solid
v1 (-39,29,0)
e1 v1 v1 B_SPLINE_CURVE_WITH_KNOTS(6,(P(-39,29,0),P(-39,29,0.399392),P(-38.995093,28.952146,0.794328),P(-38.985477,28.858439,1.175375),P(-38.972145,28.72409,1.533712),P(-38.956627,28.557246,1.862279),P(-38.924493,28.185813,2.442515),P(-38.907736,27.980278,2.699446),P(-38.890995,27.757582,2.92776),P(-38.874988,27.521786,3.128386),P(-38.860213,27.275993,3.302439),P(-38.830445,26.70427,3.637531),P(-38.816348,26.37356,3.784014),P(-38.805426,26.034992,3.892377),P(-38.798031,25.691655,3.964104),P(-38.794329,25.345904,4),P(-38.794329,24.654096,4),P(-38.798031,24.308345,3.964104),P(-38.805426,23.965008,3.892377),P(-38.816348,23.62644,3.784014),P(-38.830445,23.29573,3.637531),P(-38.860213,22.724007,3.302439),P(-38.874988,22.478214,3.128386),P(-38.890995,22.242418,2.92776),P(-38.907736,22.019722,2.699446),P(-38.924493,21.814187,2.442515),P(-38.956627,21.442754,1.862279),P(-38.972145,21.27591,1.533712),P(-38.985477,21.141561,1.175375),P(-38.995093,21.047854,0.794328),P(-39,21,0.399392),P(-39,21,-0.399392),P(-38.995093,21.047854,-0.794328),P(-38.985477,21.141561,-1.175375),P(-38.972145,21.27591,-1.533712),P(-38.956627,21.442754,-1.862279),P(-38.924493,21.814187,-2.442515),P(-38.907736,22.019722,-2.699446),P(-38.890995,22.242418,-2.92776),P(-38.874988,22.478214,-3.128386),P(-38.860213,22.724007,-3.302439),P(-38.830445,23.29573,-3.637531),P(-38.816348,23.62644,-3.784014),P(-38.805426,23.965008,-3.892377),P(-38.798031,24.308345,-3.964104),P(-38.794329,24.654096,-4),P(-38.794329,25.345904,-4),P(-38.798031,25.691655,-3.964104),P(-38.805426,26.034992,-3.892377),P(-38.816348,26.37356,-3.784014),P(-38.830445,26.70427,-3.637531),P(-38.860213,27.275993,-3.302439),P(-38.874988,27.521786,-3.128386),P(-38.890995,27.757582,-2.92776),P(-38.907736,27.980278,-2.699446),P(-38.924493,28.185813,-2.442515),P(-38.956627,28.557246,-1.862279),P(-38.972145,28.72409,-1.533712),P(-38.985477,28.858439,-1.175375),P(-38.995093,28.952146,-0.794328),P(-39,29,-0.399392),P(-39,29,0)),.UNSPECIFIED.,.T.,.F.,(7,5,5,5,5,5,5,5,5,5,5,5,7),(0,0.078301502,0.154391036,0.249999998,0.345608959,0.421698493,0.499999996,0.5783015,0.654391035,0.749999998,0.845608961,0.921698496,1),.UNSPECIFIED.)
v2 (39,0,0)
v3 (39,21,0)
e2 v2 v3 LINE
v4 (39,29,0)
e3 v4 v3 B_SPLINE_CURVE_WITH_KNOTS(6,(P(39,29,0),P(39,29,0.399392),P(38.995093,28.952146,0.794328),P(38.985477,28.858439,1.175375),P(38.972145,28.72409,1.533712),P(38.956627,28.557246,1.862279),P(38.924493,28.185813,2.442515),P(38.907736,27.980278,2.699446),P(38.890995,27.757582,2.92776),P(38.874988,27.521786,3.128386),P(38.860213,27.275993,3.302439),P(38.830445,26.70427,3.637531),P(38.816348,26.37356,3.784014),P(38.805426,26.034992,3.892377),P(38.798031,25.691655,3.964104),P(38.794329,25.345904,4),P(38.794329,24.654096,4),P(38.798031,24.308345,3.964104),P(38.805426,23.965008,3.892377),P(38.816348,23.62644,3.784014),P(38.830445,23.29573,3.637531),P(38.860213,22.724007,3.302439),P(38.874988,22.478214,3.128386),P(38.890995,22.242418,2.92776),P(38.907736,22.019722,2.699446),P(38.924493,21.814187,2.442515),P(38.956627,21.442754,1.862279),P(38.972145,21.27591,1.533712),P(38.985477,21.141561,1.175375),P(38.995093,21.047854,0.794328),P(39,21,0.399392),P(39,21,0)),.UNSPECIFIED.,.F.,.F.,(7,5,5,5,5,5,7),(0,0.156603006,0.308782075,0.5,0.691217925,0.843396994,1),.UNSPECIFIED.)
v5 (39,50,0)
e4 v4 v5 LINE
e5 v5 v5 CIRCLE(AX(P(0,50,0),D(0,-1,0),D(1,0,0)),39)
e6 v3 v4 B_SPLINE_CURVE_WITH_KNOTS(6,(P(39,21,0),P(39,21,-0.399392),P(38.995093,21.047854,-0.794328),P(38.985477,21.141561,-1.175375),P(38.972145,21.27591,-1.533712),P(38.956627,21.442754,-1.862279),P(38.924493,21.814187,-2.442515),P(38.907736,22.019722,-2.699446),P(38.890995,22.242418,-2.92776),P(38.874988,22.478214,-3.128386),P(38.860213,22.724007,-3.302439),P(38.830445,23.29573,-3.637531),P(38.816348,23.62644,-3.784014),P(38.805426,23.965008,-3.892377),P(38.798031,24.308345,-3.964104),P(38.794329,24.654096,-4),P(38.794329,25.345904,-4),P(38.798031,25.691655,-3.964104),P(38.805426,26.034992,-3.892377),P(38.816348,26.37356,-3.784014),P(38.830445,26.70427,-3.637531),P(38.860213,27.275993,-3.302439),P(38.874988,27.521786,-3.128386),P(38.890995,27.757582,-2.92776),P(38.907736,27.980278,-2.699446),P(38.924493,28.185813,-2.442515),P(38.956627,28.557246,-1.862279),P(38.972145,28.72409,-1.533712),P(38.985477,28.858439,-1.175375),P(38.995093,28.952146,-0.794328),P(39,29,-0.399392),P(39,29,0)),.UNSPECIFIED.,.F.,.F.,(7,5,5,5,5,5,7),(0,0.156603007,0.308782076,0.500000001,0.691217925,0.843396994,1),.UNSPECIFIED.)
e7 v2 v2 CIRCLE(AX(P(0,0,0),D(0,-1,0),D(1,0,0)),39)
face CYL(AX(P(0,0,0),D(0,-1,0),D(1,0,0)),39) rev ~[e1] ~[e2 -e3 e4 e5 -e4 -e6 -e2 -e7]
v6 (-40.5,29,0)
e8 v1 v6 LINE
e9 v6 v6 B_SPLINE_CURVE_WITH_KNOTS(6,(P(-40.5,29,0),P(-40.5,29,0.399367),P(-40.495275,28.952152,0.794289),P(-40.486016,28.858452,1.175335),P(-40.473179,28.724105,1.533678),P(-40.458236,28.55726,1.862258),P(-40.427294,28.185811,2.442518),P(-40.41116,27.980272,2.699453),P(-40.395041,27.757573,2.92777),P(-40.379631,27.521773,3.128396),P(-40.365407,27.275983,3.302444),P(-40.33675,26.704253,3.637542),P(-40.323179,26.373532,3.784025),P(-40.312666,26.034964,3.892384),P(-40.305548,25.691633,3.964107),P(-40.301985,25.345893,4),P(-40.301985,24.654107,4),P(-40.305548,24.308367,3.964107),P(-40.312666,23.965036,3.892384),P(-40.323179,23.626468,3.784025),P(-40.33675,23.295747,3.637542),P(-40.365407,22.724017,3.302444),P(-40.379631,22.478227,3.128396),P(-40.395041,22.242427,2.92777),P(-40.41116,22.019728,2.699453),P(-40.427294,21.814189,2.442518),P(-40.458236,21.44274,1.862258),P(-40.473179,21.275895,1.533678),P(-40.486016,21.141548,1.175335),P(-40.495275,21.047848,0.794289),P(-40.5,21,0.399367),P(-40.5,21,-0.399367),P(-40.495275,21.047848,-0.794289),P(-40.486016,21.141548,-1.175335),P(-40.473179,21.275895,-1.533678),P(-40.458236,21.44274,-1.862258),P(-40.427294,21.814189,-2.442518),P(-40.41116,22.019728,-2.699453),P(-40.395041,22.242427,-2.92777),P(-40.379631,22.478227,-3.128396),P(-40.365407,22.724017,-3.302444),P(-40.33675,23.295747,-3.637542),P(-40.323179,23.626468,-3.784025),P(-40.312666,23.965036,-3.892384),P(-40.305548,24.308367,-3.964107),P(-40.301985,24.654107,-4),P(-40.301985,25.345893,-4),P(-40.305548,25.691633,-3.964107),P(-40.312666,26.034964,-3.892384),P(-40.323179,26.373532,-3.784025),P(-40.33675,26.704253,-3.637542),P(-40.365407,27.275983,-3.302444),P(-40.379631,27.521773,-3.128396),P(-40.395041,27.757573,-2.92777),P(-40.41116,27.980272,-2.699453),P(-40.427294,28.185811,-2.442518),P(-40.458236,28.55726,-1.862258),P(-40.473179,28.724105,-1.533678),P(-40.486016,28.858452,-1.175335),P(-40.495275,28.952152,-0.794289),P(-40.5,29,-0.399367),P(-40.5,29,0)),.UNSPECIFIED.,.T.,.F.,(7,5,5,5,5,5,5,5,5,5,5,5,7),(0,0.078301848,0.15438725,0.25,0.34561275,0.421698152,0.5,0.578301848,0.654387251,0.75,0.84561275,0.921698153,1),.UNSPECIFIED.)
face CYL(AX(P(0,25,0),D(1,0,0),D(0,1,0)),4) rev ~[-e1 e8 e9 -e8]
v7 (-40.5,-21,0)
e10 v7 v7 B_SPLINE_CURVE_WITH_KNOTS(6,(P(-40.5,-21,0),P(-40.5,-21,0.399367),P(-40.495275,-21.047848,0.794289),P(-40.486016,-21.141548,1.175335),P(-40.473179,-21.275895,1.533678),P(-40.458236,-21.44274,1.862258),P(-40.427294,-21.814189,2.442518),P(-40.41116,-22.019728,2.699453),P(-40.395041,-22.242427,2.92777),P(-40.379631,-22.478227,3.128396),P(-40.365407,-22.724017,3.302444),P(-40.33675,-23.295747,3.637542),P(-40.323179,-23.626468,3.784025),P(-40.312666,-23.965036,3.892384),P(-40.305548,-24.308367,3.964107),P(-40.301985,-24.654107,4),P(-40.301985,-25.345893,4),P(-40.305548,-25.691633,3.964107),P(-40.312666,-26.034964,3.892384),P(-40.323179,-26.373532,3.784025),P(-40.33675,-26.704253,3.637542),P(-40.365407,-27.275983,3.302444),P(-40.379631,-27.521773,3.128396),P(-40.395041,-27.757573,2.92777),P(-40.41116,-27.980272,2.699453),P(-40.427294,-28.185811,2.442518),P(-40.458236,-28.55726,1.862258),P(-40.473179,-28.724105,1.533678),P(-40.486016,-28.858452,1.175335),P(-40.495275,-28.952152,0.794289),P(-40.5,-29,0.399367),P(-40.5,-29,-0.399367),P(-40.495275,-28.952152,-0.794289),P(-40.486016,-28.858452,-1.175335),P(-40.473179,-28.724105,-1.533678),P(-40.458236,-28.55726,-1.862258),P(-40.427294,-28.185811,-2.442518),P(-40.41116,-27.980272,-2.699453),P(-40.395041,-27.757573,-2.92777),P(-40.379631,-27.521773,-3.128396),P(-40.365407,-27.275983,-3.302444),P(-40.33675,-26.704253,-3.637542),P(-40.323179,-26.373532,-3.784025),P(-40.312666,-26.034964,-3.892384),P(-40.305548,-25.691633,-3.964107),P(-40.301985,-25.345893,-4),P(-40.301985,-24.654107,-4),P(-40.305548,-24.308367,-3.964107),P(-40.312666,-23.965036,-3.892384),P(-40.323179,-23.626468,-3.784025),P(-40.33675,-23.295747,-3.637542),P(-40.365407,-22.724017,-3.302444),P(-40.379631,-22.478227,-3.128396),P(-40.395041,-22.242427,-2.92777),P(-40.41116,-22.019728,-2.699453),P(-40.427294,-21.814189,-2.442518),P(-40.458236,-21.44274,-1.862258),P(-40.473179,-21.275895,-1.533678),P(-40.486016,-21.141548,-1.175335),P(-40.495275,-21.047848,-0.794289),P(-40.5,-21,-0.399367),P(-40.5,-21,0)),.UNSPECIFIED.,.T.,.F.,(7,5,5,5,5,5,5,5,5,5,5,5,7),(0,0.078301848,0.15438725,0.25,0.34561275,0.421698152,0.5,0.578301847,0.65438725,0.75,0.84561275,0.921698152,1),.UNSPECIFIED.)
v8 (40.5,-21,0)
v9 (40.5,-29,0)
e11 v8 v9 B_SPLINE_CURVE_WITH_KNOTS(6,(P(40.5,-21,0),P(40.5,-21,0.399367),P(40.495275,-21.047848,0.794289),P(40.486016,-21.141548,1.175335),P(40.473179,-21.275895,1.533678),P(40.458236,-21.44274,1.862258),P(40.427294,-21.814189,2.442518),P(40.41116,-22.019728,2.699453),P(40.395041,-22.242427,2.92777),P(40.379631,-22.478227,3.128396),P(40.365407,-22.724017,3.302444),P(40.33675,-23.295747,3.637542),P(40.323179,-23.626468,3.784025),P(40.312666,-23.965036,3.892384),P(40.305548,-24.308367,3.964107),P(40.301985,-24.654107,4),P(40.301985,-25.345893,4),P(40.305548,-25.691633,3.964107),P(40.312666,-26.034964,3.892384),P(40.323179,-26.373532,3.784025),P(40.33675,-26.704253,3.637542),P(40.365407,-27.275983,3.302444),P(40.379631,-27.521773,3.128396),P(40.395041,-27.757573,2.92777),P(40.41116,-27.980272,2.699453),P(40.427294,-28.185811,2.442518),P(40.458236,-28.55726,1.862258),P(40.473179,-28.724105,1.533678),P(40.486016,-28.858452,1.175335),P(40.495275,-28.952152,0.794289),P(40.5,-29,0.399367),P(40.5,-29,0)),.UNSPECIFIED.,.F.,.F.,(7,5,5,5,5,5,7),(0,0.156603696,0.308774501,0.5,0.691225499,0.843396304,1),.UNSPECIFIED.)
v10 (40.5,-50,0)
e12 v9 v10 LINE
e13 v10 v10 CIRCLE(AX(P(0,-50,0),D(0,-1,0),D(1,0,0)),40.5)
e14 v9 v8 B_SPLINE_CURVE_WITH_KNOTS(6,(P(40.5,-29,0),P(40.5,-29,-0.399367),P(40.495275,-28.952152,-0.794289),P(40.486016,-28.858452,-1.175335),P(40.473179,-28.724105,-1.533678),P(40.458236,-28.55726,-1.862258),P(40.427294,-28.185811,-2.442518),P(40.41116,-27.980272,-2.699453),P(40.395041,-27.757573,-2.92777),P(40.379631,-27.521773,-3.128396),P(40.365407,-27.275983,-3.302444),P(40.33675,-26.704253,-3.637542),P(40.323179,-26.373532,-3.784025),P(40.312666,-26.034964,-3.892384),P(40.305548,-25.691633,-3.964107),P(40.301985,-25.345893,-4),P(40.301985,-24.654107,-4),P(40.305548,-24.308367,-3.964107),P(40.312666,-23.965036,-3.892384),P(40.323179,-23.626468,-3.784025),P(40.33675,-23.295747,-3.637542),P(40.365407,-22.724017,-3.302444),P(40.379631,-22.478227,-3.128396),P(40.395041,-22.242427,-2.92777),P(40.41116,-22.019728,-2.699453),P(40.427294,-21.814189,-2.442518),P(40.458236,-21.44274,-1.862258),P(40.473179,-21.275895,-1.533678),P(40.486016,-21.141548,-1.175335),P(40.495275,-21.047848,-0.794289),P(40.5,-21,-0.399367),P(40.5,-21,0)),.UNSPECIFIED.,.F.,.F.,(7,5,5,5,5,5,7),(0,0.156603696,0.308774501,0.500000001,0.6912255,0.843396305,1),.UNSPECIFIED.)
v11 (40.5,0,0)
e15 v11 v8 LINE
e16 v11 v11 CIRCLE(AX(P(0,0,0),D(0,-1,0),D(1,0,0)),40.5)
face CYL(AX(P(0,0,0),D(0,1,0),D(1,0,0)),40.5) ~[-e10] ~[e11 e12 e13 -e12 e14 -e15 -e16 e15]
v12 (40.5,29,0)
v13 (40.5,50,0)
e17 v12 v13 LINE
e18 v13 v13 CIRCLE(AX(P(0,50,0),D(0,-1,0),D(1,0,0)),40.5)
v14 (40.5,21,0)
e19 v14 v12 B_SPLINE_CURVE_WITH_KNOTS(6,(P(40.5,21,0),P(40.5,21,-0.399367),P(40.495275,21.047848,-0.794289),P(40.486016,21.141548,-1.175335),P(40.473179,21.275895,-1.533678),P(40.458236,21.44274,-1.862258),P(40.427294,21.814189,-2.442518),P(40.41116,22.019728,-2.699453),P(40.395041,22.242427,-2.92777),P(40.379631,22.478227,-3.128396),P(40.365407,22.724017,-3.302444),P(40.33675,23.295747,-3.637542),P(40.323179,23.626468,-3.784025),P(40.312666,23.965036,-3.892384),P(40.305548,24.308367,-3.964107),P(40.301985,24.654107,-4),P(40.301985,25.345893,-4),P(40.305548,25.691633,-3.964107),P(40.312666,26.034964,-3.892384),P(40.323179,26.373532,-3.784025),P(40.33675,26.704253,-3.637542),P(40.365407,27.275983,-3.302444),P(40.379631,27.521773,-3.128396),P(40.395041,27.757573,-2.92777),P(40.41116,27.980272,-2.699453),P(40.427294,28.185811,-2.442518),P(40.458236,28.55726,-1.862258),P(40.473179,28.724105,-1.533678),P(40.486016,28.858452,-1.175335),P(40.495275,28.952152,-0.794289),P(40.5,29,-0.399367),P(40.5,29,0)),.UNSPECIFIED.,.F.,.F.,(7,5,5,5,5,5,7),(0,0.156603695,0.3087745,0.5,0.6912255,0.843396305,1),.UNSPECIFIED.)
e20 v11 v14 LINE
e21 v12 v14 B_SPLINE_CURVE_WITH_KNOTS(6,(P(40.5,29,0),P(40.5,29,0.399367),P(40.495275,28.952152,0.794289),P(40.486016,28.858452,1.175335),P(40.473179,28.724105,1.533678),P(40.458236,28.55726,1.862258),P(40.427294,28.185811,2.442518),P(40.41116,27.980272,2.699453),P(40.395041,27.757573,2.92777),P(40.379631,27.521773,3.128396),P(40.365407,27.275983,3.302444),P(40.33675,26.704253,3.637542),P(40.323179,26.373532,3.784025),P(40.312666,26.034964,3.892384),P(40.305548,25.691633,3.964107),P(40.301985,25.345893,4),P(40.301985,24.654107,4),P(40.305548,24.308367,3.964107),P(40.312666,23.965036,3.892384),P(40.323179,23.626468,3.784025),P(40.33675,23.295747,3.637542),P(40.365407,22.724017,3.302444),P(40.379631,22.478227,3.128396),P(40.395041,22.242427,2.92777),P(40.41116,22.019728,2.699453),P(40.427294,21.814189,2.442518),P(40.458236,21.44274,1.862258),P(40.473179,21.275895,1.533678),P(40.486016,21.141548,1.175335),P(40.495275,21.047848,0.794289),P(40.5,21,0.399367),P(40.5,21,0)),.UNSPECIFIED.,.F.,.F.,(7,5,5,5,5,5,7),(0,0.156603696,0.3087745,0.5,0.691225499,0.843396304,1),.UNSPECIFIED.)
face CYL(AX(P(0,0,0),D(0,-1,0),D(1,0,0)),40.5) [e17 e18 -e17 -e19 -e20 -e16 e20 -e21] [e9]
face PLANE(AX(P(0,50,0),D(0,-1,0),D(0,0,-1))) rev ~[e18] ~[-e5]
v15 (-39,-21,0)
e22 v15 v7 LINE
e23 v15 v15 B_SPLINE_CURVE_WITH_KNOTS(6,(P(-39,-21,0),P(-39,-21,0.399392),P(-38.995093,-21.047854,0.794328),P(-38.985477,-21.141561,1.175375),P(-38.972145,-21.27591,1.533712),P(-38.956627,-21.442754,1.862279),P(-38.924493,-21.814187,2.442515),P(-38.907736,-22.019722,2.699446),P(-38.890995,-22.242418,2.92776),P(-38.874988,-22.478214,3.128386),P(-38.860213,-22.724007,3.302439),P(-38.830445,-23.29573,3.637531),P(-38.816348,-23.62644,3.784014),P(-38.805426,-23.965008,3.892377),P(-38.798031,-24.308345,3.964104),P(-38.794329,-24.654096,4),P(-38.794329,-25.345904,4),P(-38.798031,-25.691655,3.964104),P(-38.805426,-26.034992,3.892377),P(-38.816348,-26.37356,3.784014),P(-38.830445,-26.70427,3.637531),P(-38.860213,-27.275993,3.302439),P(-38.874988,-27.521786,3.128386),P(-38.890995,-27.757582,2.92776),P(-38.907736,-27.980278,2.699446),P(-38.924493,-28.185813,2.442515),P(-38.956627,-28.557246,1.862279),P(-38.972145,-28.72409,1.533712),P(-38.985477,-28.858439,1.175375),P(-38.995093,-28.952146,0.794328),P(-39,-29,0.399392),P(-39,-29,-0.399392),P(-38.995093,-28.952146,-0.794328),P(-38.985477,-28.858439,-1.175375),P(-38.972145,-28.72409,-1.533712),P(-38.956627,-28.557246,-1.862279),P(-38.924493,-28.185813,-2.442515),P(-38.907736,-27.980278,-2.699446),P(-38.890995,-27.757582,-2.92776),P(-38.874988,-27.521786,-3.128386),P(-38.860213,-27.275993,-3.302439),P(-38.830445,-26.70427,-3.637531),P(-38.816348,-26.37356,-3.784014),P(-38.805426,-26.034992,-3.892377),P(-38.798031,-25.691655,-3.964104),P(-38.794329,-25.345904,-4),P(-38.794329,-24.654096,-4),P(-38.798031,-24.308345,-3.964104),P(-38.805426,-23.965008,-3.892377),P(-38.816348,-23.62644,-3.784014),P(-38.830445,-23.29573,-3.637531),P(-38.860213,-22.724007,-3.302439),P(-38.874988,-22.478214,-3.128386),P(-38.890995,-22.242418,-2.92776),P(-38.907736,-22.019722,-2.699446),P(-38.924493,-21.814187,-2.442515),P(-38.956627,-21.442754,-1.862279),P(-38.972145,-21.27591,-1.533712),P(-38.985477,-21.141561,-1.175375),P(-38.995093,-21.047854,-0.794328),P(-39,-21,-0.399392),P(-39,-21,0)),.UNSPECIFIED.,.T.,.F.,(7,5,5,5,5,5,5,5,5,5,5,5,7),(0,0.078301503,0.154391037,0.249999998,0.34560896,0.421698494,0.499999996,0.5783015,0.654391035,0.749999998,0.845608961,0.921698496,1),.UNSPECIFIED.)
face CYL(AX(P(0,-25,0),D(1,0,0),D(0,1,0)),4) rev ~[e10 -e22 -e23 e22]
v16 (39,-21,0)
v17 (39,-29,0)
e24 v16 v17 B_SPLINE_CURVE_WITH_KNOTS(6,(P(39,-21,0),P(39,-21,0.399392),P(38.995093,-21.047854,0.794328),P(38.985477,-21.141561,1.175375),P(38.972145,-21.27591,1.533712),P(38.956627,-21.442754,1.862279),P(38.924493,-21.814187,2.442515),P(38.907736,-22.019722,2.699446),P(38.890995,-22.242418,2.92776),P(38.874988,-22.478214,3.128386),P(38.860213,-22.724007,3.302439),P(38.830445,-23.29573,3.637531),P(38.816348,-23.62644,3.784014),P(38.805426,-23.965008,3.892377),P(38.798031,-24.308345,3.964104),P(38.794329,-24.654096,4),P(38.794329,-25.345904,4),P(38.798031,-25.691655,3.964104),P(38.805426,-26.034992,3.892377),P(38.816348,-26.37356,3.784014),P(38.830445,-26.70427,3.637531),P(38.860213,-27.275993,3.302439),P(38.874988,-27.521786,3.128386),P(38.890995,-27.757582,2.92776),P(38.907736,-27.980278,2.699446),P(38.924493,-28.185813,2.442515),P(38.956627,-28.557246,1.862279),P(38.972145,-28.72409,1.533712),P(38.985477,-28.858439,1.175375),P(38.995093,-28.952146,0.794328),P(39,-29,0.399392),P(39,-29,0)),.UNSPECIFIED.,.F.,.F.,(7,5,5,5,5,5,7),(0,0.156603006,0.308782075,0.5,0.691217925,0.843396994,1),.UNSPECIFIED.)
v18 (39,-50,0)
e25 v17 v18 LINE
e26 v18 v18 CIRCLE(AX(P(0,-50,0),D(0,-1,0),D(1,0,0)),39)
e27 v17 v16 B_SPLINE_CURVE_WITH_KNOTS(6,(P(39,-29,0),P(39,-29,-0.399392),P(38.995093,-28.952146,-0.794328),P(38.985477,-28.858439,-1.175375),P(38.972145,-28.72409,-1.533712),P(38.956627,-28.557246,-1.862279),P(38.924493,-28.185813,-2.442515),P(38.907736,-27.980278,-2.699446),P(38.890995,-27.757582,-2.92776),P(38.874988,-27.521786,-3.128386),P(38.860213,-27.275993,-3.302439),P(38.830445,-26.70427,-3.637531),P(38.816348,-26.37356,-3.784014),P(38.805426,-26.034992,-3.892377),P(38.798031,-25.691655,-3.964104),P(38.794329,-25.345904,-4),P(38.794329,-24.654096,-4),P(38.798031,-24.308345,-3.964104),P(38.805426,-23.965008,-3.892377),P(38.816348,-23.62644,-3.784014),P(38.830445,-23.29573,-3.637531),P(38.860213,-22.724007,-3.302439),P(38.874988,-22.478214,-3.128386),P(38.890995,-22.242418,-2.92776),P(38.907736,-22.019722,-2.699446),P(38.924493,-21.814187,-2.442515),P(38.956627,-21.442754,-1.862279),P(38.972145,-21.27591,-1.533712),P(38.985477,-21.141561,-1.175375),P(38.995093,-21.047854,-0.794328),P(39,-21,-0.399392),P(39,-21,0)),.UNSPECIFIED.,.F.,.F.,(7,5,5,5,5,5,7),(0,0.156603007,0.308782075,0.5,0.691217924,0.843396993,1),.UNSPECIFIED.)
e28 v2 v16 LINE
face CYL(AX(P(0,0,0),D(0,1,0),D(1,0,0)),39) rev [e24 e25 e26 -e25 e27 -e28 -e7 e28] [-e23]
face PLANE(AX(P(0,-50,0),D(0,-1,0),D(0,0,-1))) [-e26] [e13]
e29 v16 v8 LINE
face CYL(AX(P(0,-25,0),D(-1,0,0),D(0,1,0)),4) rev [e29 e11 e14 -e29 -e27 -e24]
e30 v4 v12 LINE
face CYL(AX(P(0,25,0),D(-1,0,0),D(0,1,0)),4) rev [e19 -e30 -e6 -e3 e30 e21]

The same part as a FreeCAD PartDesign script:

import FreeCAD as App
import Part
import Sketcher

doc = App.newDocument("Part")
body = doc.addObject("PartDesign::Body", "Body")

sketch1 = body.newObject("Sketcher::SketchObject", "Sketch")
sketch1.AttachmentSupport = (doc.getObject("XZ_Plane"), [""])
sketch1.MapMode = "FlatFace"
sketch1.addGeometry(Part.Circle(App.Vector(0, 0, 0), App.Vector(0, 0, 1), 40), False)
sketch1.addConstraint([
    Sketcher.Constraint("Coincident", 0, 3, -1, 1),
    Sketcher.Constraint("Diameter", 0, 81.0),
])
pad1 = body.newObject("PartDesign::Pad", "Pad")
pad1.Profile = sketch1
pad1.Length = 100
pad1.Midplane = True

sketch2 = body.newObject("Sketcher::SketchObject", "Sketch001")
sketch2.AttachmentSupport = (doc.getObject("XZ_Plane"), [""])
sketch2.MapMode = "FlatFace"
sketch2.addGeometry(Part.Circle(App.Vector(0, 0, 0), App.Vector(0, 0, 1), 39), False)
sketch2.addConstraint([
    Sketcher.Constraint("Coincident", 0, 3, -1, 1),
    Sketcher.Constraint("Diameter", 0, 78.0),
])
pocket1 = body.newObject("PartDesign::Pocket", "Pocket")
pocket1.Profile = sketch2
pocket1.Length = 100
pocket1.Midplane = True

sketch3 = body.newObject("Sketcher::SketchObject", "Sketch002")
sketch3.AttachmentSupport = (doc.getObject("YZ_Plane"), [""])
sketch3.MapMode = "FlatFace"
sketch3.addGeometry(Part.Circle(App.Vector(-25, 0, 0), App.Vector(0, 0, 1), 4), False)
sketch3.addConstraint([
    Sketcher.Constraint("PointOnObject", 0, 3, -1),
    Sketcher.Constraint("Diameter", 0, 8.0),
    Sketcher.Constraint("DistanceX", 0, 3, -1, 1, 25.0),
])
pocket2 = body.newObject("PartDesign::Pocket", "Pocket001")
pocket2.Profile = sketch3
pocket2.Length = 85
pocket2.Midplane = True

sketch4 = body.newObject("Sketcher::SketchObject", "Sketch003")
sketch4.AttachmentSupport = (doc.getObject("YZ_Plane"), [""])
sketch4.MapMode = "FlatFace"
sketch4.addGeometry(Part.Circle(App.Vector(25, 0, 0), App.Vector(0, 0, 1), 4), False)
sketch4.addConstraint([
    Sketcher.Constraint("PointOnObject", 0, 3, -1),
    Sketcher.Constraint("Diameter", 0, 8.0),
    Sketcher.Constraint("DistanceX", -1, 1, 0, 3, 25.0),
])
pocket3 = body.newObject("PartDesign::Pocket", "Pocket002")
pocket3.Profile = sketch4
pocket3.Length = 85
pocket3.Midplane = True

doc.recompute()
